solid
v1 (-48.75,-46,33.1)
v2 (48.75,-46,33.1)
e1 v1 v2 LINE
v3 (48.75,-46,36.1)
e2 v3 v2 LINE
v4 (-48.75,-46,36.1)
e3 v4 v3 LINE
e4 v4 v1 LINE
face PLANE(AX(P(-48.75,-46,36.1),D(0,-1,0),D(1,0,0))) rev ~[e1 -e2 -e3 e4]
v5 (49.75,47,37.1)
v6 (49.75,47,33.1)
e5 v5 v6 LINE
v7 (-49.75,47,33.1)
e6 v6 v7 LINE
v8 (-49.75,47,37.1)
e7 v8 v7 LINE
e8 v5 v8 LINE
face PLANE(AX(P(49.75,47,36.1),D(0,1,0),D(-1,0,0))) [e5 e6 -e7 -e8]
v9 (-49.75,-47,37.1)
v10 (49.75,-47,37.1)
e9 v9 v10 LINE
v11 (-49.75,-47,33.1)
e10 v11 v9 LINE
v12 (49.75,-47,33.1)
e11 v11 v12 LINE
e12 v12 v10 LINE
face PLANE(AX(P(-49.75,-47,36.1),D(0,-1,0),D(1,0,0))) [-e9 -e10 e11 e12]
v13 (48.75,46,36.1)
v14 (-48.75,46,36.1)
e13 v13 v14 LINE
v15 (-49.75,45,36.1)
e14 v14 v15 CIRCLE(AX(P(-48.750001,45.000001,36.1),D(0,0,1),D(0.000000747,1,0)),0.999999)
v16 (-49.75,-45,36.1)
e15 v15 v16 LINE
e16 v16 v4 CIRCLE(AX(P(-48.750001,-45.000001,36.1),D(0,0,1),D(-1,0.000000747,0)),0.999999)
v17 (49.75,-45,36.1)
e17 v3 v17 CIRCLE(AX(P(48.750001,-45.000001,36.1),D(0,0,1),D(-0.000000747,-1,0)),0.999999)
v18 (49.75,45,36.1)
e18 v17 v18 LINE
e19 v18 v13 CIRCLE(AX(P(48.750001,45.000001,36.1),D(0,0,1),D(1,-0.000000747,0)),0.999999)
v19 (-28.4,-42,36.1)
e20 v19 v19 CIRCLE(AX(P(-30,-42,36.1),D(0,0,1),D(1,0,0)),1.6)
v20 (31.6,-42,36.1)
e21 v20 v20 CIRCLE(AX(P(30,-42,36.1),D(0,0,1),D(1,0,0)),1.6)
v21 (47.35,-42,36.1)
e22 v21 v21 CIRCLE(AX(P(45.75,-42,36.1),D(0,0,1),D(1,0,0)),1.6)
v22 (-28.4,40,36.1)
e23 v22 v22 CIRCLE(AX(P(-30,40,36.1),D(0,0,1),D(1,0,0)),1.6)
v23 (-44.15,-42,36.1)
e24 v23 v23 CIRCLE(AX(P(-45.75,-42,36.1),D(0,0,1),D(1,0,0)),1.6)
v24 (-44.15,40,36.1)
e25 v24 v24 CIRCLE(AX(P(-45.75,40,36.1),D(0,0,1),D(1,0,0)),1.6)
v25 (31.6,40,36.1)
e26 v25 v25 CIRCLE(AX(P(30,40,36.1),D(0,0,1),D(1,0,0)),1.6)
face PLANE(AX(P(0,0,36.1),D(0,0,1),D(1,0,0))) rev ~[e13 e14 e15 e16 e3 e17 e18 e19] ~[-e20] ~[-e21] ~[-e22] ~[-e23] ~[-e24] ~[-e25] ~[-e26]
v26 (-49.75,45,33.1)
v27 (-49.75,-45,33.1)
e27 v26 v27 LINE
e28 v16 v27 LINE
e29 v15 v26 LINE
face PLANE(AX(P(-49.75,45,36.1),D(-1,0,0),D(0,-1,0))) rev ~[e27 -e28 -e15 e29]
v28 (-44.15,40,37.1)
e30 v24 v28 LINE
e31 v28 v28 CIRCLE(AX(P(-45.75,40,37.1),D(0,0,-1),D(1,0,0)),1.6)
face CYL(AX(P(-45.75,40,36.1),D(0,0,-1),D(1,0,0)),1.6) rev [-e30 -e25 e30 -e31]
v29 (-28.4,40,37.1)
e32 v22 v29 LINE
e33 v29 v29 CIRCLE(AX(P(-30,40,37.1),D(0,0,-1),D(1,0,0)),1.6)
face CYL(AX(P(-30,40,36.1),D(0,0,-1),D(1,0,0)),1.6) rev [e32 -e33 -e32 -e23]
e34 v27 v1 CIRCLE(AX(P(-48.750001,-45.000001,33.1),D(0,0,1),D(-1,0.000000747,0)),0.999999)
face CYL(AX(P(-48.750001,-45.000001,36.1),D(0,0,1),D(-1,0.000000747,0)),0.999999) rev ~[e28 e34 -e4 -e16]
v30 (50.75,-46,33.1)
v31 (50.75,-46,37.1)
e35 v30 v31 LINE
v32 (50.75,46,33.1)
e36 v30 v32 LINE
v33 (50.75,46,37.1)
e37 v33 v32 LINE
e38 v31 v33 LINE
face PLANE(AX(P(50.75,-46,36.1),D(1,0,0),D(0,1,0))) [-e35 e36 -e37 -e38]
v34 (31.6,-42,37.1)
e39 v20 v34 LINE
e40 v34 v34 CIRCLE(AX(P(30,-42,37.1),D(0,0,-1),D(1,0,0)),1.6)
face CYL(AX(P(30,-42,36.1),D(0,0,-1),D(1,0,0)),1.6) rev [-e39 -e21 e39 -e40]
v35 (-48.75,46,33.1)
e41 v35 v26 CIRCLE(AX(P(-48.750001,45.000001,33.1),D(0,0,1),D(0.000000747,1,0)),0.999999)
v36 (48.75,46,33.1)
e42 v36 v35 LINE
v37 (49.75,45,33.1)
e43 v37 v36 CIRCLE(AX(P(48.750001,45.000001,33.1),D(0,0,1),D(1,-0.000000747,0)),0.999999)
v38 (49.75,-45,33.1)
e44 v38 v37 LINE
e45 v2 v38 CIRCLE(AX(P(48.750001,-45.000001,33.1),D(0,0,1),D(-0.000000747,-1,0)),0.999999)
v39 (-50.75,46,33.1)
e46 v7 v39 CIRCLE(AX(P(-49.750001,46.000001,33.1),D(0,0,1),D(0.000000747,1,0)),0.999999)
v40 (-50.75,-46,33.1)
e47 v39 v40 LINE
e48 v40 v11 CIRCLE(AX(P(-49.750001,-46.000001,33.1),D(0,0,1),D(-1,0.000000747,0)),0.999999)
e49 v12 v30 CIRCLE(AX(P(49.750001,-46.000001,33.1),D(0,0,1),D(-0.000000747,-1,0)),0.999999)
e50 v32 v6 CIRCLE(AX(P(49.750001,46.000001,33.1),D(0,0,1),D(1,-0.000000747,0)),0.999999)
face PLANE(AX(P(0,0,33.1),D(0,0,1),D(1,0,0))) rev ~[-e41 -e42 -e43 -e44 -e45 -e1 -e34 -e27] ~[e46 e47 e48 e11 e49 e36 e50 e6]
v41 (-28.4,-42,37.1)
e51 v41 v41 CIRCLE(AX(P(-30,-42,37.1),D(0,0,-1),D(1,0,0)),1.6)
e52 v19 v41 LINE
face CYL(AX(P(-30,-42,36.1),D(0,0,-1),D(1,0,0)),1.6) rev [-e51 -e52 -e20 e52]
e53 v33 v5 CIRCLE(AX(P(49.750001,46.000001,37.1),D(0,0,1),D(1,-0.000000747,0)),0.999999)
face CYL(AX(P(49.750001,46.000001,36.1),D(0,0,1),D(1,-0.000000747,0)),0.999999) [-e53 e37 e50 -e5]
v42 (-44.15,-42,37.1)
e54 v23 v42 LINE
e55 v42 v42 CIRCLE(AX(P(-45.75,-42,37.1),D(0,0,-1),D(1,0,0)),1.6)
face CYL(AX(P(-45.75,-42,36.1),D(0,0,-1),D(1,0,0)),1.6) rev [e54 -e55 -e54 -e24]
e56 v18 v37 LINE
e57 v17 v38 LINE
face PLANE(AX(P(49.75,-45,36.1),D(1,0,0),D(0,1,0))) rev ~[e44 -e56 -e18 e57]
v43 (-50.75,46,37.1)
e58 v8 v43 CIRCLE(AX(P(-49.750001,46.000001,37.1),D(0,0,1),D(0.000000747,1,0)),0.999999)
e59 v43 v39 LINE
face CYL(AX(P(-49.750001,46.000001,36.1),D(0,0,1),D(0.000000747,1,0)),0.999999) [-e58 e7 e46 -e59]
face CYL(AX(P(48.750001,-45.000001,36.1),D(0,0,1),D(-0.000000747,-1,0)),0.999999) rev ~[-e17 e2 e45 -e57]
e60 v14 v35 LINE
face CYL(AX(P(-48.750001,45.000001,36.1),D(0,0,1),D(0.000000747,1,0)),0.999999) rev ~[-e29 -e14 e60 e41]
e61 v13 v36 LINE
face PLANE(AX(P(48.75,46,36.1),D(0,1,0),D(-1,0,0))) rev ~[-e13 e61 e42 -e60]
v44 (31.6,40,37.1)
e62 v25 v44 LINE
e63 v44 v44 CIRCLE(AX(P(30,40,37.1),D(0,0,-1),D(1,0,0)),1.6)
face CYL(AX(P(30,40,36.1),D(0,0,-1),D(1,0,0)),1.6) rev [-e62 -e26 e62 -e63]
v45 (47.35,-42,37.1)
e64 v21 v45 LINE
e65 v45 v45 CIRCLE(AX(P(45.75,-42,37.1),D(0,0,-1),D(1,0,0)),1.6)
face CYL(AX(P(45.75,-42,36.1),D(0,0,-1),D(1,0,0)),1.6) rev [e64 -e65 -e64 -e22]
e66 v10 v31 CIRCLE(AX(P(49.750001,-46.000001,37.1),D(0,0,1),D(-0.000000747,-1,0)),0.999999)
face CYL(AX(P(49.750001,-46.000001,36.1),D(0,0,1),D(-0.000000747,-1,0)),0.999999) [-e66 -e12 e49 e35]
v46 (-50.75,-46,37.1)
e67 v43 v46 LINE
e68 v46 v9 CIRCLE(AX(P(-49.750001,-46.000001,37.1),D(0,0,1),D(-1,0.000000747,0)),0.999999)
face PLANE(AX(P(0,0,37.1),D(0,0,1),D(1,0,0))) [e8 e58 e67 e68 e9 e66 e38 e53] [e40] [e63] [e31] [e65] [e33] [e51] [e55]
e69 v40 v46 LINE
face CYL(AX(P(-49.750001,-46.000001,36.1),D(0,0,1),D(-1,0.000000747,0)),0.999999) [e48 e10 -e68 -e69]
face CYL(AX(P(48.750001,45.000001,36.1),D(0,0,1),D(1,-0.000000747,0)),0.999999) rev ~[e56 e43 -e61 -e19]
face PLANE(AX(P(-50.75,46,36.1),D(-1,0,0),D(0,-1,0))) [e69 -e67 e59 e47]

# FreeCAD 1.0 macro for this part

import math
import FreeCAD as App
import Part
import Sketcher

V = App.Vector
Q = App.Units.Quantity

doc = App.newDocument("Part")
body = doc.addObject("PartDesign::Body", "Body")

# Sketch on XY plane
sketch1 = doc.addObject("Sketcher::SketchObject", "Sketch")
body.addObject(sketch1)
sketch1.AttachmentSupport = (doc.XY_Plane, [""])
sketch1.MapMode = "FlatFace"
sketch1.addGeometry([
    Part.LineSegment(V(-50.8, 46, 0), V(-50.8, -46, 0)),  # 0
    Part.ArcOfCircle(Part.Circle(V(-49.8, -46, 0), V(0, 0, 1), 1), math.radians(180), math.radians(270)),  # 1
    Part.LineSegment(V(-49.8, -47, 0), V(49.8, -47, 0)),  # 2
    Part.ArcOfCircle(Part.Circle(V(49.8, -46, 0), V(0, 0, 1), 1), math.radians(-90), math.radians(0)),  # 3
    Part.LineSegment(V(50.8, -46, 0), V(50.8, 46, 0)),  # 4
    Part.ArcOfCircle(Part.Circle(V(49.8, 46, 0), V(0, 0, 1), 1), math.radians(0), math.radians(90)),  # 5
    Part.LineSegment(V(49.8, 47, 0), V(-49.8, 47, 0)),  # 6
    Part.ArcOfCircle(Part.Circle(V(-49.8, 46, 0), V(0, 0, 1), 1), math.radians(90), math.radians(180)),  # 7
], False)
sketch1.addConstraint([
    Sketcher.Constraint("Tangent", 0, 2, 1, 1),
    Sketcher.Constraint("Tangent", 1, 2, 2, 1),
    Sketcher.Constraint("Tangent", 2, 2, 3, 1),
    Sketcher.Constraint("Tangent", 3, 2, 4, 1),
    Sketcher.Constraint("Tangent", 4, 2, 5, 1),
    Sketcher.Constraint("Tangent", 5, 2, 6, 1),
    Sketcher.Constraint("Tangent", 6, 2, 7, 1),
    Sketcher.Constraint("Tangent", 7, 2, 0, 1),
    Sketcher.Constraint("Vertical", 0),
    Sketcher.Constraint("Horizontal", 2),
    Sketcher.Constraint("Vertical", 4),
    Sketcher.Constraint("Horizontal", 6),
    Sketcher.Constraint("Equal", 1, 3),
    Sketcher.Constraint("Equal", 3, 5),
    Sketcher.Constraint("Equal", 5, 7),
    Sketcher.Constraint("Symmetric", 1, 3, 5, 3, -1, 1),
    Sketcher.Constraint("Radius", 1, Q("0.999999 mm")),
    Sketcher.Constraint("DistanceY", 0, 2, 0, 1, Q("92 mm")),
    Sketcher.Constraint("DistanceX", 2, 1, 2, 2, Q("99.5 mm")),
])
pad1 = doc.addObject("PartDesign::Pad", "Pad")
body.addObject(pad1)
pad1.Profile = sketch1
pad1.Length = 1

# Sketch on XY plane
sketch2 = doc.addObject("Sketcher::SketchObject", "Sketch001")
body.addObject(sketch2)
sketch2.AttachmentSupport = (doc.XY_Plane, [""])
sketch2.MapMode = "FlatFace"
sketch2.addGeometry([
    Part.LineSegment(V(-50.8, 46, 0), V(-50.8, -46, 0)),  # 0
    Part.ArcOfCircle(Part.Circle(V(-49.8, -46, 0), V(0, 0, 1), 1), math.radians(180), math.radians(270)),  # 1
    Part.LineSegment(V(-49.8, -47, 0), V(49.8, -47, 0)),  # 2
    Part.ArcOfCircle(Part.Circle(V(49.8, -46, 0), V(0, 0, 1), 1), math.radians(-90), math.radians(0)),  # 3
    Part.LineSegment(V(50.8, -46, 0), V(50.8, 46, 0)),  # 4
    Part.ArcOfCircle(Part.Circle(V(49.8, 46, 0), V(0, 0, 1), 1), math.radians(0), math.radians(90)),  # 5
    Part.LineSegment(V(49.8, 47, 0), V(-49.8, 47, 0)),  # 6
    Part.ArcOfCircle(Part.Circle(V(-49.8, 46, 0), V(0, 0, 1), 1), math.radians(90), math.radians(180)),  # 7
    Part.LineSegment(V(-49.8, -45, 0), V(-49.8, 45, 0)),  # 8
    Part.ArcOfCircle(Part.Circle(V(-48.8, 45, 0), V(0, 0, 1), 1), math.radians(90), math.radians(180)),  # 9
    Part.LineSegment(V(-48.8, 46, 0), V(48.8, 46, 0)),  # 10
    Part.ArcOfCircle(Part.Circle(V(48.8, 45, 0), V(0, 0, 1), 1), math.radians(0), math.radians(90)),  # 11
    Part.LineSegment(V(49.8, 45, 0), V(49.8, -45, 0)),  # 12
    Part.ArcOfCircle(Part.Circle(V(48.8, -45, 0), V(0, 0, 1), 1), math.radians(-90), math.radians(0)),  # 13
    Part.LineSegment(V(48.8, -46, 0), V(-48.8, -46, 0)),  # 14
    Part.ArcOfCircle(Part.Circle(V(-48.8, -45, 0), V(0, 0, 1), 1), math.radians(180), math.radians(270)),  # 15
], False)
sketch2.addConstraint([
    Sketcher.Constraint("Tangent", 0, 2, 1, 1),
    Sketcher.Constraint("Tangent", 1, 2, 2, 1),
    Sketcher.Constraint("Tangent", 2, 2, 3, 1),
    Sketcher.Constraint("Tangent", 3, 2, 4, 1),
    Sketcher.Constraint("Tangent", 4, 2, 5, 1),
    Sketcher.Constraint("Tangent", 5, 2, 6, 1),
    Sketcher.Constraint("Tangent", 6, 2, 7, 1),
    Sketcher.Constraint("Tangent", 7, 2, 0, 1),
    Sketcher.Constraint("Tangent", 8, 2, 9, 2),
    Sketcher.Constraint("Tangent", 9, 1, 10, 1),
    Sketcher.Constraint("Tangent", 10, 2, 11, 2),
    Sketcher.Constraint("Tangent", 11, 1, 12, 1),
    Sketcher.Constraint("Tangent", 12, 2, 13, 2),
    Sketcher.Constraint("Tangent", 13, 1, 14, 1),
    Sketcher.Constraint("Tangent", 14, 2, 15, 2),
    Sketcher.Constraint("Tangent", 15, 1, 8, 1),
    Sketcher.Constraint("Vertical", 0),
    Sketcher.Constraint("Horizontal", 2),
    Sketcher.Constraint("Vertical", 4),
    Sketcher.Constraint("Horizontal", 6),
    Sketcher.Constraint("Vertical", 8),
    Sketcher.Constraint("Horizontal", 10),
    Sketcher.Constraint("Vertical", 12),
    Sketcher.Constraint("Horizontal", 14),
    Sketcher.Constraint("Equal", 1, 3),
    Sketcher.Constraint("Equal", 3, 5),
    Sketcher.Constraint("Equal", 5, 7),
    Sketcher.Constraint("Equal", 7, 9),
    Sketcher.Constraint("Equal", 9, 11),
    Sketcher.Constraint("Equal", 11, 13),
    Sketcher.Constraint("Equal", 13, 15),
    Sketcher.Constraint("Symmetric", 1, 3, 5, 3, -1, 1),
    Sketcher.Constraint("Symmetric", 9, 3, 13, 3, -1, 1),
    Sketcher.Constraint("Horizontal", 7, 2, 9, 1),
    Sketcher.Constraint("Vertical", 6, 2, 8, 2),
    Sketcher.Constraint("Radius", 1, Q("0.999999 mm")),
    Sketcher.Constraint("DistanceY", 0, 2, 0, 1, Q("92 mm")),
    Sketcher.Constraint("DistanceX", 2, 1, 2, 2, Q("99.5 mm")),
])
pad2 = doc.addObject("PartDesign::Pad", "Pad001")
body.addObject(pad2)
pad2.Profile = sketch2
pad2.Length = 3
pad2.Reversed = True

# Sketch on XY plane
sketch3 = doc.addObject("Sketcher::SketchObject", "Sketch002")
body.addObject(sketch3)
sketch3.AttachmentSupport = (doc.XY_Plane, [""])
sketch3.MapMode = "FlatFace"
sketch3.addGeometry([
    Part.Circle(V(-45.8, 40, 0), V(0, 0, 1), 1.6),  # 0
    Part.Circle(V(-30, 40, 0), V(0, 0, 1), 1.6),  # 1
    Part.Circle(V(30, 40, 0), V(0, 0, 1), 1.6),  # 2
    Part.Circle(V(-30, -42, 0), V(0, 0, 1), 1.6),  # 3
    Part.Circle(V(-45.8, -42, 0), V(0, 0, 1), 1.6),  # 4
    Part.Circle(V(30, -42, 0), V(0, 0, 1), 1.6),  # 5
    Part.Circle(V(45.8, -42, 0), V(0, 0, 1), 1.6),  # 6
], False)
sketch3.addConstraint([
    Sketcher.Constraint("Equal", 0, 1),
    Sketcher.Constraint("Equal", 1, 2),
    Sketcher.Constraint("Equal", 2, 3),
    Sketcher.Constraint("Equal", 3, 4),
    Sketcher.Constraint("Equal", 4, 5),
    Sketcher.Constraint("Equal", 5, 6),
    Sketcher.Constraint("Symmetric", 1, 3, 2, 3, -2),
    Sketcher.Constraint("Symmetric", 3, 3, 5, 3, -2),
    Sketcher.Constraint("Symmetric", 4, 3, 6, 3, -2),
    Sketcher.Constraint("Horizontal", 0, 3, 1, 3),
    Sketcher.Constraint("Horizontal", 3, 3, 4, 3),
    Sketcher.Constraint("Vertical", 1, 3, 3, 3),
    Sketcher.Constraint("Vertical", 0, 3, 4, 3),
    Sketcher.Constraint("Diameter", 0, Q("3.2 mm")),
    Sketcher.Constraint("DistanceY", -1, 1, 0, 3, Q("40 mm")),
    Sketcher.Constraint("DistanceX", 1, 3, -1, 1, Q("30 mm")),
    Sketcher.Constraint("DistanceY", 3, 3, -1, 1, Q("42 mm")),
    Sketcher.Constraint("DistanceX", 4, 3, 6, 3, Q("91.5 mm")),
])
pocket1 = doc.addObject("PartDesign::Pocket", "Pocket")
body.addObject(pocket1)
pocket1.Profile = sketch3
pocket1.Length = 5
pocket1.Reversed = True
body2 = doc.addObject("PartDesign::Body", "Body001")
doc.recompute()

body.Placement = App.Placement(V(0, 0, 36.1), App.Rotation(V(0, 0, 1), 0))
boolean = doc.addObject("PartDesign::Boolean", "Boolean")
body2.addObject(boolean)
boolean.Type = "Fuse"
boolean.addObjects([body])

doc.recompute()
